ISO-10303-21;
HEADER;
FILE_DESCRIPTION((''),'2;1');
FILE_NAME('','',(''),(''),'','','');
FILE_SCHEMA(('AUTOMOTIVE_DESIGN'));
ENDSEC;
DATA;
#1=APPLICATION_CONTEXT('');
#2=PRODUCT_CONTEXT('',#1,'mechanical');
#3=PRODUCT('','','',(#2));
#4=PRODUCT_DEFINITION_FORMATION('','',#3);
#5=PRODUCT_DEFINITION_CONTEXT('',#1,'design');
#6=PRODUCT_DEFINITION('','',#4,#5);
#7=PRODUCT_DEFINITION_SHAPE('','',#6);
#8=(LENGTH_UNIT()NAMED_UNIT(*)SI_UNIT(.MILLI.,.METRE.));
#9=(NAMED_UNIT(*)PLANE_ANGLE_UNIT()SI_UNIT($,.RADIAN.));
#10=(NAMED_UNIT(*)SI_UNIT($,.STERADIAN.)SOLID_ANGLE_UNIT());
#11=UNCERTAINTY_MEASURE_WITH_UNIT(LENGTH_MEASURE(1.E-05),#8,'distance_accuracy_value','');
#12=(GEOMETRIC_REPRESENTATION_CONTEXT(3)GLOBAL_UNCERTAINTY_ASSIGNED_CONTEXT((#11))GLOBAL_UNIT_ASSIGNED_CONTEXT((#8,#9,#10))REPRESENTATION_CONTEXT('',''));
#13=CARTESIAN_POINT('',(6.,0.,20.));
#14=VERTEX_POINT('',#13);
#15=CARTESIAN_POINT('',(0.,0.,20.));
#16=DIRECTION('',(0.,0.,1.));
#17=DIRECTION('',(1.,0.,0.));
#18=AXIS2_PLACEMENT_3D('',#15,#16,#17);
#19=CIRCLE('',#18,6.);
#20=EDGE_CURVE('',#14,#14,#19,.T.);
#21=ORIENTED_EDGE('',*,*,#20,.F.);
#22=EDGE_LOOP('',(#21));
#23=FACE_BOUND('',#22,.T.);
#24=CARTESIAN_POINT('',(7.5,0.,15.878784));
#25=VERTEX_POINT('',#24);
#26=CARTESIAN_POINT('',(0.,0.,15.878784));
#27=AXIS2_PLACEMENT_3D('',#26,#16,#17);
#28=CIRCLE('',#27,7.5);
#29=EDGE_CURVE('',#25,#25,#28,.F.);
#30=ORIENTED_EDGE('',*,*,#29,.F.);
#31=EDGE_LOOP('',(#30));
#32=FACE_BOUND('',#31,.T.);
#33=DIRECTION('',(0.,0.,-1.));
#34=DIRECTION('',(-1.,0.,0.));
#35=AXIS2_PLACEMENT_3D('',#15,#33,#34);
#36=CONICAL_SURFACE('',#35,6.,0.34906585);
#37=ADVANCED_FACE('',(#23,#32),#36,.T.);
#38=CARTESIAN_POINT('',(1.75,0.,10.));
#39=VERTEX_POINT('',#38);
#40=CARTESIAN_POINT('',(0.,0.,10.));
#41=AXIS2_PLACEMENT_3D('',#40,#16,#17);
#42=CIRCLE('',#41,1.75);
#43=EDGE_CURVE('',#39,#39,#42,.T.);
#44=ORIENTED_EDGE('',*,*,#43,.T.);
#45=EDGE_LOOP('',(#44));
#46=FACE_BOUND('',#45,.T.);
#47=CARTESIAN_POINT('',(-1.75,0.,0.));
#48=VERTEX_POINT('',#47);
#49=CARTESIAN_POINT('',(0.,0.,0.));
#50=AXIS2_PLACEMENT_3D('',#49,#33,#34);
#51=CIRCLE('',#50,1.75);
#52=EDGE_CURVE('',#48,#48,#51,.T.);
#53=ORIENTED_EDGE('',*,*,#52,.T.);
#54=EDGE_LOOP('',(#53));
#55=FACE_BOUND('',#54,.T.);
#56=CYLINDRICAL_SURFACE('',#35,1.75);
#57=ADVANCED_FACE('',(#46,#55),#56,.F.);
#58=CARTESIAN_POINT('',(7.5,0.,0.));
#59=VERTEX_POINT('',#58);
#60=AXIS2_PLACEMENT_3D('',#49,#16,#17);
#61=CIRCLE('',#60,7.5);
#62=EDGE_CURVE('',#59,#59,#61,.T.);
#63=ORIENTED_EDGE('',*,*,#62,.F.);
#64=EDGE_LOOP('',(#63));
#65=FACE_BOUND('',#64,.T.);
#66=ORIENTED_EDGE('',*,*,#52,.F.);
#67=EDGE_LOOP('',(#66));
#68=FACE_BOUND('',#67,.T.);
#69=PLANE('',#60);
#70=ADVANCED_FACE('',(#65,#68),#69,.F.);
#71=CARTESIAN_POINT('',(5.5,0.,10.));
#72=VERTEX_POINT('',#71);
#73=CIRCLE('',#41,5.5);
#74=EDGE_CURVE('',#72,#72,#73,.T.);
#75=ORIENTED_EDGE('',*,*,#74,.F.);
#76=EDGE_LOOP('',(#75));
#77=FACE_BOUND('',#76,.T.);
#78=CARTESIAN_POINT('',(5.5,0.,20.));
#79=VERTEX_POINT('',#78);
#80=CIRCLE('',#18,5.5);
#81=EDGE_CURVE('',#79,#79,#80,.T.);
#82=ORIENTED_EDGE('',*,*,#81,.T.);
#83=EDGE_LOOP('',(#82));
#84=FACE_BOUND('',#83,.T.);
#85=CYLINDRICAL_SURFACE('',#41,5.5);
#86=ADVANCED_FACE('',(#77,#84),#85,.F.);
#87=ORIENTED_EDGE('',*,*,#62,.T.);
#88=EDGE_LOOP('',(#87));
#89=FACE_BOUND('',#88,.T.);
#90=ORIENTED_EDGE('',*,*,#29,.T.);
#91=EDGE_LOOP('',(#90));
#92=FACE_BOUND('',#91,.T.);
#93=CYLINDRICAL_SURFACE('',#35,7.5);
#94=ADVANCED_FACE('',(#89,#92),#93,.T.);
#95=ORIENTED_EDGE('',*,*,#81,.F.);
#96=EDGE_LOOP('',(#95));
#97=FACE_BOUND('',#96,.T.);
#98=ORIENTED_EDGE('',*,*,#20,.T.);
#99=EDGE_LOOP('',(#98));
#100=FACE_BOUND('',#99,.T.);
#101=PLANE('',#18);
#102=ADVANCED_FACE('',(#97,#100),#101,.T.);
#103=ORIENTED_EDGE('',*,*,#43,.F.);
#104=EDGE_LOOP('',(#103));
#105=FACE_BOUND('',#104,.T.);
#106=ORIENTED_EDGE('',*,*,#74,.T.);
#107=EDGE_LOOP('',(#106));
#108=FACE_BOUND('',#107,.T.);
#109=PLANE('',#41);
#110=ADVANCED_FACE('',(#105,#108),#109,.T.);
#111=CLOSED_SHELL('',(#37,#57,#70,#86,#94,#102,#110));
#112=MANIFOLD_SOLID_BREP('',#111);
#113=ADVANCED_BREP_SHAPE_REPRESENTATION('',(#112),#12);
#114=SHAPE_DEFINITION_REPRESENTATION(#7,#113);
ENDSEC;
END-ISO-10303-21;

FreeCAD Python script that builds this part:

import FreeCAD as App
import Part
import Sketcher
Q = App.Units.Quantity


def edges_at(feature, points):
    """Names of the edges that pass closest to the given points."""
    edges = feature.Shape.Edges
    near = lambda p: min(range(len(edges)), key=lambda i: edges[i].distToShape(Part.Vertex(*p))[0])
    return sorted({f"Edge{near(p) + 1}" for p in points})

doc = App.newDocument("Part")
body = doc.addObject("PartDesign::Body", "Body")

# Sketch on XY plane
sketch1 = doc.addObject("Sketcher::SketchObject", "Sketch")
body.addObject(sketch1)
sketch1.AttachmentSupport = (doc.XY_Plane, [""])
sketch1.MapMode = "FlatFace"
sketch1.addGeometry(Part.Circle(App.Vector(0, 0, 0), App.Vector(0, 0, 1), 8), False)
sketch1.addConstraint(Sketcher.Constraint("Coincident", 0, 3, -1, 1))
sketch1.addConstraint(Sketcher.Constraint("Diameter", 0, Q("15 mm")))
pad1 = doc.addObject("PartDesign::Pad", "Pad")
body.addObject(pad1)
pad1.Profile = sketch1
pad1.Length = 20

# Sketch on XY plane
sketch2 = doc.addObject("Sketcher::SketchObject", "Sketch001")
body.addObject(sketch2)
sketch2.AttachmentSupport = (doc.XY_Plane, [""])
sketch2.MapMode = "FlatFace"
sketch2.AttachmentOffset = App.Placement(App.Vector(0, 0, 20), App.Rotation())
sketch2.addGeometry(Part.Circle(App.Vector(0, 0, 0), App.Vector(0, 0, 1), 6), False)
sketch2.addConstraint(Sketcher.Constraint("Coincident", 0, 3, -1, 1))
sketch2.addConstraint(Sketcher.Constraint("Diameter", 0, Q("11 mm")))
pocket1 = doc.addObject("PartDesign::Pocket", "Pocket")
body.addObject(pocket1)
pocket1.Profile = sketch2
pocket1.Length = 10
doc.recompute()

chamfer = doc.addObject("PartDesign::Chamfer", "Chamfer")
body.addObject(chamfer)
chamfer.Base = (pocket1, edges_at(pocket1, [(-7.5, 0, 20)]))
chamfer.ChamferType = "Two distances"
chamfer.Size = 1.5
chamfer.Size2 = 4.121216
chamfer.FlipDirection = True

# Sketch on XY plane
sketch3 = doc.addObject("Sketcher::SketchObject", "Sketch002")
body.addObject(sketch3)
sketch3.AttachmentSupport = (doc.XY_Plane, [""])
sketch3.MapMode = "FlatFace"
sketch3.addGeometry(Part.Circle(App.Vector(0, 0, 0), App.Vector(0, 0, 1), 1.8), False)
sketch3.addConstraint(Sketcher.Constraint("Coincident", 0, 3, -1, 1))
sketch3.addConstraint(Sketcher.Constraint("Diameter", 0, Q("3.5 mm")))
pocket2 = doc.addObject("PartDesign::Pocket", "Pocket001")
body.addObject(pocket2)
pocket2.Profile = sketch3
pocket2.Type = "ThroughAll"
pocket2.Reversed = True

doc.recompute()
